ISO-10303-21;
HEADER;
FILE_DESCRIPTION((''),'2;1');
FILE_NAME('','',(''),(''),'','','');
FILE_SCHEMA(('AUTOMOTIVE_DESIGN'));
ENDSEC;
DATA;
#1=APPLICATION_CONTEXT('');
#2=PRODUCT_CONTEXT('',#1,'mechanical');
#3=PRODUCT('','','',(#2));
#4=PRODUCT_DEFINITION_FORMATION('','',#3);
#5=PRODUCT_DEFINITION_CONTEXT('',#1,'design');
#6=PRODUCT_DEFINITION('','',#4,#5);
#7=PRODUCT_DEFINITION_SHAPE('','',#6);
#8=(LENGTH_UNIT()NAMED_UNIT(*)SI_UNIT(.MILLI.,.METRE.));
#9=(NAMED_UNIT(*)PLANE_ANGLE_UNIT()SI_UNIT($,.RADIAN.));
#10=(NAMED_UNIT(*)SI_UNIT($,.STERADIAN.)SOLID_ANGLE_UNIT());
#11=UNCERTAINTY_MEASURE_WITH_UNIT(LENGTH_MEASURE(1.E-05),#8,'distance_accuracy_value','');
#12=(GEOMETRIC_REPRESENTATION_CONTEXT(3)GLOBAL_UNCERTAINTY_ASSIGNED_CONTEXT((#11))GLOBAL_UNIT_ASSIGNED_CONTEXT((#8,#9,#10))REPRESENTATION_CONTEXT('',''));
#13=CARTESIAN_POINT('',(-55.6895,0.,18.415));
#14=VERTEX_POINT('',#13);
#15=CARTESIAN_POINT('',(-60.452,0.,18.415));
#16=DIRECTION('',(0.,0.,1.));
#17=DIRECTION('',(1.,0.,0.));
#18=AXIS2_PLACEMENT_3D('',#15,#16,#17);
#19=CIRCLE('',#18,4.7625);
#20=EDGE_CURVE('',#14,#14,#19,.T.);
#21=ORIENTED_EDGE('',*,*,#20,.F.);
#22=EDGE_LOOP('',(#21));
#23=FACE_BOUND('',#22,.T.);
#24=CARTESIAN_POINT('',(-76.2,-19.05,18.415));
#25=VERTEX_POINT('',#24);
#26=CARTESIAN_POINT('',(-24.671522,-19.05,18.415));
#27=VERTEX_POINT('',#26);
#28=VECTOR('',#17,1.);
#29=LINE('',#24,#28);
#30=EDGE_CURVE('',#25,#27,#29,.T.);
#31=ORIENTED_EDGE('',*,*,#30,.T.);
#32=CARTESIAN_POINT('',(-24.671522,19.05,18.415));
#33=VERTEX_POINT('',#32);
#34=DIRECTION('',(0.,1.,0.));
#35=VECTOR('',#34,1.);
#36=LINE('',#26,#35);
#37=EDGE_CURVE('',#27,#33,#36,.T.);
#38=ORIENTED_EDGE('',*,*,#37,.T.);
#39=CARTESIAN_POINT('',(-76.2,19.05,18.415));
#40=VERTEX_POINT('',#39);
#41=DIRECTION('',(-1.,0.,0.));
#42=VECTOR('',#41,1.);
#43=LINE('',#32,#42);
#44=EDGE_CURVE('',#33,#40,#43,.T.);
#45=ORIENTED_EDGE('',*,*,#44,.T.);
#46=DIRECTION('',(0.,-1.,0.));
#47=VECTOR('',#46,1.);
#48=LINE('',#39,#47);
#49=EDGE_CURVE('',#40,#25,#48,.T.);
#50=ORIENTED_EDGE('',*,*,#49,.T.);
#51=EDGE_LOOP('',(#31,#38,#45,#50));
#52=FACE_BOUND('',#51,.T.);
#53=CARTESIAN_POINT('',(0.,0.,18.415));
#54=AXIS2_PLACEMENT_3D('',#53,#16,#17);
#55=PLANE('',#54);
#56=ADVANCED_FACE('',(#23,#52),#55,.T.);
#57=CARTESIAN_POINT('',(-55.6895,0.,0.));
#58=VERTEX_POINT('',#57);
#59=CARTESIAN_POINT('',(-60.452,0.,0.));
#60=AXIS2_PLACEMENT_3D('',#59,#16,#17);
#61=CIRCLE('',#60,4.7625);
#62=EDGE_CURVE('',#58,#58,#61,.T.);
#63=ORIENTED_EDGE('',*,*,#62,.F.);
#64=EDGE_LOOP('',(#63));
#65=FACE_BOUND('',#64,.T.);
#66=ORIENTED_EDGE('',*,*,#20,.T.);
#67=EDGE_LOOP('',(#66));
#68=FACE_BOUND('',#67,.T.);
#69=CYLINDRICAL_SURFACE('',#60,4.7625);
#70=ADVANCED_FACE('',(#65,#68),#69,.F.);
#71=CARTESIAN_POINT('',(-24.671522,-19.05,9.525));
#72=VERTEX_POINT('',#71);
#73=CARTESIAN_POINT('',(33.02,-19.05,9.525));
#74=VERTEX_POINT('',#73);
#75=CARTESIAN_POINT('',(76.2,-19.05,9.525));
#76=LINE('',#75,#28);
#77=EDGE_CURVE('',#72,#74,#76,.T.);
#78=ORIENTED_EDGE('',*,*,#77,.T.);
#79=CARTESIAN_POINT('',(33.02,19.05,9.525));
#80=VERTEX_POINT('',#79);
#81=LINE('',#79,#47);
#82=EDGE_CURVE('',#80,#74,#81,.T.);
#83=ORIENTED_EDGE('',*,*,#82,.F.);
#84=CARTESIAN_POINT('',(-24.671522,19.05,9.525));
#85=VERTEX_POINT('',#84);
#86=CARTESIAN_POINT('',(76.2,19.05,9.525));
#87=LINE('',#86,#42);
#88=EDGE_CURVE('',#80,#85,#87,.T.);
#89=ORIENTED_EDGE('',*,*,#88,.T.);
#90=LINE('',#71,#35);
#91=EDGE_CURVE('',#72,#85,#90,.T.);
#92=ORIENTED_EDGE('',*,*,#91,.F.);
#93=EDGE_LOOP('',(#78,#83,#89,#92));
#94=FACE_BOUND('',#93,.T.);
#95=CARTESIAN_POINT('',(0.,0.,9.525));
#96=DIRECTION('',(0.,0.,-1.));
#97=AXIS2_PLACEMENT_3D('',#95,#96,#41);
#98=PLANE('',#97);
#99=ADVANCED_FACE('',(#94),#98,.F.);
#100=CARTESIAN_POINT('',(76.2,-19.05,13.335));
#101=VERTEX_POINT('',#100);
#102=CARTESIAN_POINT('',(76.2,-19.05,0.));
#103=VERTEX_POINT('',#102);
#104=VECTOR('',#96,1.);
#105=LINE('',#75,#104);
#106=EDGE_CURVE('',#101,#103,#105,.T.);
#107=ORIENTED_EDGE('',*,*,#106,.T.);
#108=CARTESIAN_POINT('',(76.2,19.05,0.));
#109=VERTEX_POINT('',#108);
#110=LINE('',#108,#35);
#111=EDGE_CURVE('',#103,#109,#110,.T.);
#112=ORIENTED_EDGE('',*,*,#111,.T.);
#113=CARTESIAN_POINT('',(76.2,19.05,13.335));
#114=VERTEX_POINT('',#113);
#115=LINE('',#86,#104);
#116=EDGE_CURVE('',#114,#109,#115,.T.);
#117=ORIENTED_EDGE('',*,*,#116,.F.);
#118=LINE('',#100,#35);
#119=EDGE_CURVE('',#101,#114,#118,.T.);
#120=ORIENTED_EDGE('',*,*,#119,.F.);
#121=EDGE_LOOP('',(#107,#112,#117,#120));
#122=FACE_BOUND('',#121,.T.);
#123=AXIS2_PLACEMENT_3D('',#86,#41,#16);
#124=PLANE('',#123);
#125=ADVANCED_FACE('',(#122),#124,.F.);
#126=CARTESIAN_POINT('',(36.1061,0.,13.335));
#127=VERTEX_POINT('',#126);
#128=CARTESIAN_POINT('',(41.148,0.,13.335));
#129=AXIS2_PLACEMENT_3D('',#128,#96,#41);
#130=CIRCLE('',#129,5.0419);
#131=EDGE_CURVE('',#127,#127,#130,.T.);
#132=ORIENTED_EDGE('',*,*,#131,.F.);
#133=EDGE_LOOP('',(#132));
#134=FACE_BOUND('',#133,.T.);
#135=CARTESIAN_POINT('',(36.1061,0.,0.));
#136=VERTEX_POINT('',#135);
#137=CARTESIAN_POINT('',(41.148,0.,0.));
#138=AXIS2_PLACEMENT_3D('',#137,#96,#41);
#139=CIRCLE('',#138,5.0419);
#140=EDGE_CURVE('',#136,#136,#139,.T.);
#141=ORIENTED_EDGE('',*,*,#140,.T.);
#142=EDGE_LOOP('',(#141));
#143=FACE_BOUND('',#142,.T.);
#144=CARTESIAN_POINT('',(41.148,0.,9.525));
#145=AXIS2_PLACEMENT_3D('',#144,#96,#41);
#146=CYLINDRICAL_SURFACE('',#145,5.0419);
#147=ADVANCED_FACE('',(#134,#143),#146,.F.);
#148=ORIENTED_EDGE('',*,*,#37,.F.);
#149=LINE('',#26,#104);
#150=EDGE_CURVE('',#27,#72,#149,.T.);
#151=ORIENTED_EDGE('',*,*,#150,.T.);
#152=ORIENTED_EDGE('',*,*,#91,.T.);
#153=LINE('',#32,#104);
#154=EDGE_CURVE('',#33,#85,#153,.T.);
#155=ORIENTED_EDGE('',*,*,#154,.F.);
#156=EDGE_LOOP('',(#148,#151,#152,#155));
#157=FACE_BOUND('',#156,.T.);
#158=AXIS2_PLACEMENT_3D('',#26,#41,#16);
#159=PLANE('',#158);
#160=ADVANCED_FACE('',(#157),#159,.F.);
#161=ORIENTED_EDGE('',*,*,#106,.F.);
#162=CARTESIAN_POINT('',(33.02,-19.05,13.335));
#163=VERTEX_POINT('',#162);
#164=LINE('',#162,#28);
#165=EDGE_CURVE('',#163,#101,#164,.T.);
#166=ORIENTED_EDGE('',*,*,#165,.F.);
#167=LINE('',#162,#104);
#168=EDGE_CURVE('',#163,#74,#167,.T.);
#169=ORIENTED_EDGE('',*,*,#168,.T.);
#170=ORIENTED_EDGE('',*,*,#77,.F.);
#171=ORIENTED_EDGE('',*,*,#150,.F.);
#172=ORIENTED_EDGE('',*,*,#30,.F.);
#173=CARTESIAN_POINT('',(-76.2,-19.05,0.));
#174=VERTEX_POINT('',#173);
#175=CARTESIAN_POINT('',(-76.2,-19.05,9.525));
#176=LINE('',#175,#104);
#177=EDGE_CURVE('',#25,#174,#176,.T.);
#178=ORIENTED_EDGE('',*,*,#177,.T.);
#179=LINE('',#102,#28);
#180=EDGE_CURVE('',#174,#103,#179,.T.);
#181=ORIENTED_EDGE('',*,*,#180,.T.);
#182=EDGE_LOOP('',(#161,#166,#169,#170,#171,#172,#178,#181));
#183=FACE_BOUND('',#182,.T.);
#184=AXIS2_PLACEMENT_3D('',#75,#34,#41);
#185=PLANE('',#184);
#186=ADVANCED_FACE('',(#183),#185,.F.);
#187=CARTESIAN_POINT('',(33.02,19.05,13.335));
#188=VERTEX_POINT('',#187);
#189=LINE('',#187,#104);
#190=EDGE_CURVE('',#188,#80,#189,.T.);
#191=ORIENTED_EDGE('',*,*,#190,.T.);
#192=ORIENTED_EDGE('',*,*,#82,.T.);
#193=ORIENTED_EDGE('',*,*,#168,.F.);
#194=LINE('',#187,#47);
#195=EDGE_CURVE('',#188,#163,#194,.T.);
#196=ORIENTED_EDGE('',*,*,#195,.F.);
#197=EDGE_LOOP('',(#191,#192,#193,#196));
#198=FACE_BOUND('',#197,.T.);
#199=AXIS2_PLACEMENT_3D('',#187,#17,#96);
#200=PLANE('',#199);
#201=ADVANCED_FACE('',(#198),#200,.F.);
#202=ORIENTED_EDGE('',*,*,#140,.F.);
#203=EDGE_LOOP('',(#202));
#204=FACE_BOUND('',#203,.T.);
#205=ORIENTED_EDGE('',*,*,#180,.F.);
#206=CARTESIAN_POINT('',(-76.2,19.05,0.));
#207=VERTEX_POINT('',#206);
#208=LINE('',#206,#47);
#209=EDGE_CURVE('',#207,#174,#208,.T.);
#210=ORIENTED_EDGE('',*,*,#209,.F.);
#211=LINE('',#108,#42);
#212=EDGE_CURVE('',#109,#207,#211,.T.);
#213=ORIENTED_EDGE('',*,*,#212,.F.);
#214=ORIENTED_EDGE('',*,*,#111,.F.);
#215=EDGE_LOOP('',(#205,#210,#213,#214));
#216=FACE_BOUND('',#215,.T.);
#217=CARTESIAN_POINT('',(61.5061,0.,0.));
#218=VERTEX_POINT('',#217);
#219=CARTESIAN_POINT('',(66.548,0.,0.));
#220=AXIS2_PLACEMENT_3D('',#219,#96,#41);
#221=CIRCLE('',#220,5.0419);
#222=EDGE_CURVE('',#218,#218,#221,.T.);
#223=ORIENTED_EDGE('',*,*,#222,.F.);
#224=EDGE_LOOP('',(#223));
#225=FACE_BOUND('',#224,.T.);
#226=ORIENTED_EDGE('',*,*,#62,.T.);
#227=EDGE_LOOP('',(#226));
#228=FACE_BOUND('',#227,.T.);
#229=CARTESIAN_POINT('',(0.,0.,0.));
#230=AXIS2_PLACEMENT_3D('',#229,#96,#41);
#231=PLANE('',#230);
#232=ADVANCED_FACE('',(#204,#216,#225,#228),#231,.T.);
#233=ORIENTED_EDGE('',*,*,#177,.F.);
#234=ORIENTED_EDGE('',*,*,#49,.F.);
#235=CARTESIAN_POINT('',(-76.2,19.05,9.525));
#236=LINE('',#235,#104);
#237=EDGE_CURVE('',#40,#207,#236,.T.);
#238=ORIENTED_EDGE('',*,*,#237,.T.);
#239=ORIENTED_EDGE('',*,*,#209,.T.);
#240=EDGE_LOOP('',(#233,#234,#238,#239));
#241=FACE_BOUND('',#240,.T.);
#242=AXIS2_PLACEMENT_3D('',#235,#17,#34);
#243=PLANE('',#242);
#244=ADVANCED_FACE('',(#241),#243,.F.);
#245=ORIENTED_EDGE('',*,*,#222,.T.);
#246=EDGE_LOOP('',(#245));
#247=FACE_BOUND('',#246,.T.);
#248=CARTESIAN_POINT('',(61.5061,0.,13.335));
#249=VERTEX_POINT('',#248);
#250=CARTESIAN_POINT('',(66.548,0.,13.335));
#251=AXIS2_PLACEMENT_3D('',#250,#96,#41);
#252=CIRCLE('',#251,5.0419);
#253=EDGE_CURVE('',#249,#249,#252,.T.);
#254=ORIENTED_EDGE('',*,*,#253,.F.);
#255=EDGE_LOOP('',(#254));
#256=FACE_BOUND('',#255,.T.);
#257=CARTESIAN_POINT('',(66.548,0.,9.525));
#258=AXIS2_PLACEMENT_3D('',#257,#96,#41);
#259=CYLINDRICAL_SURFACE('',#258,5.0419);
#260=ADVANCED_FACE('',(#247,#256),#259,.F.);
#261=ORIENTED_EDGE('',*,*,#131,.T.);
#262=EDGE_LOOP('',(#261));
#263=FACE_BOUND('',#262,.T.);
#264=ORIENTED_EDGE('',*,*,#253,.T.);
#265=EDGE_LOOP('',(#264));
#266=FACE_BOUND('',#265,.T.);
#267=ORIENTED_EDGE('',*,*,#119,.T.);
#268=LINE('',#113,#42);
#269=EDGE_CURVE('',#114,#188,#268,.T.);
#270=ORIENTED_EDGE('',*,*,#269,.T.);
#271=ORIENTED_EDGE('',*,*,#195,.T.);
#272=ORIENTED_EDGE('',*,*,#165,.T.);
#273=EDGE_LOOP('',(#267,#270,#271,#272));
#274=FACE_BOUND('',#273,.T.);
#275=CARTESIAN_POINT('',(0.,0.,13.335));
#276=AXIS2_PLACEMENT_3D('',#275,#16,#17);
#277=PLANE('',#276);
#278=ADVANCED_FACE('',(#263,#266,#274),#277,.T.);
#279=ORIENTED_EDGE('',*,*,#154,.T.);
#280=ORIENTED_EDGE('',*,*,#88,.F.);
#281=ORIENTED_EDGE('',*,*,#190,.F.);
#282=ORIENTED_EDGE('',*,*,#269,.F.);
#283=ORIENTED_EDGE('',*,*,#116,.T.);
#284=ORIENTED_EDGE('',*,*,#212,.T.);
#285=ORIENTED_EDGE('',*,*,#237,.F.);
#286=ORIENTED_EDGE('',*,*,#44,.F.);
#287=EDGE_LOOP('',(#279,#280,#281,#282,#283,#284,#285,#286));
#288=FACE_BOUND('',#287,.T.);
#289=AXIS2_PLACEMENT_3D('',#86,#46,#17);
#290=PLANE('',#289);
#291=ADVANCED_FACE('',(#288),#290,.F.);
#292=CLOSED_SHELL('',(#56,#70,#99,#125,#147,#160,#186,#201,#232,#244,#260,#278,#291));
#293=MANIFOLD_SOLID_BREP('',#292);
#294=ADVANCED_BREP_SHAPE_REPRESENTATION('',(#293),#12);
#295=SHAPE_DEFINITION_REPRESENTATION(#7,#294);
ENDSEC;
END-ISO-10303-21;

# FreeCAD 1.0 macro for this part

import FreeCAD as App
import Part
import Sketcher

V = App.Vector
Q = App.Units.Quantity


def add_polygon(sketch, points):
    """Adds a closed chain of lines whose ends are joined by coincident constraints."""
    first, n = sketch.GeometryCount, len(points)
    for a, b in zip(points, points[1:] + points[:1]):
        sketch.addGeometry(Part.LineSegment(App.Vector(*a, 0), App.Vector(*b, 0)), False)
    for i in range(n):
        sketch.addConstraint(Sketcher.Constraint("Coincident", first + i, 2, first + (i + 1) % n, 1))

doc = App.newDocument("Part")
params = doc.addObject("Spreadsheet::Sheet", "Params")
for row, (alias, value) in enumerate([
    ("sketch1_width", "6 in"),
    ("sketch1_height", "1.5 in"),
    ("pad1_length", "0.375 in"),
    ("sketch2_width", "1.7 in"),
    ("sketch2_height", "1.5 in"),
    ("pad2_length", "0.15 in"),
    ("sketch3_height", "0.15 in"),
    ("groove_angle", "360 deg"),
    ("linearpattern_pitch", "1 in"),
    ("sketch4_height", "1.5 in"),
    ("pad3_length", "0.35 in"),
    ("sketch5_diameter", "0.397 in"),
    ("hole_diameter", "0.397 in"),
    ("sketch6_diameter", "0.375 in"),
], start=1):
    params.set(f"A{row}", alias)
    params.set(f"B{row}", "=" + value)
    params.setAlias(f"B{row}", alias)

body = doc.addObject("PartDesign::Body", "Body")

# Sketch on XY plane
sketch1 = doc.addObject("Sketcher::SketchObject", "Sketch")
body.addObject(sketch1)
sketch1.AttachmentSupport = (doc.XY_Plane, [""])
sketch1.MapMode = "FlatFace"
add_polygon(sketch1, [(-76.2, 19.05), (-76.2, -19.05), (76.2, -19.05), (76.2, 19.05)])  # lines 0-3
sketch1.addConstraint([
    Sketcher.Constraint("Vertical", 0),
    Sketcher.Constraint("Horizontal", 1),
    Sketcher.Constraint("Vertical", 2),
    Sketcher.Constraint("Horizontal", 3),
    Sketcher.Constraint("Symmetric", 0, 2, 2, 2, -1, 1),
    Sketcher.Constraint("DistanceX", 1, 1, 1, 2, Q("6 in")),
    Sketcher.Constraint("DistanceY", 0, 2, 0, 1, Q("1.5 in")),
])
sketch1.setExpression("Constraints[9]", "Params.sketch1_width")
sketch1.setExpression("Constraints[10]", "Params.sketch1_height")
pad1 = doc.addObject("PartDesign::Pad", "Pad")
body.addObject(pad1)
pad1.Profile = sketch1
pad1.setExpression("Length", "Params.pad1_length")

# Sketch on XY plane
sketch2 = doc.addObject("Sketcher::SketchObject", "Sketch001")
body.addObject(sketch2)
sketch2.AttachmentSupport = (doc.XY_Plane, [""])
sketch2.MapMode = "FlatFace"
sketch2.AttachmentOffset = App.Placement(V(0, 0, 0.375 * 25.4), App.Rotation())
add_polygon(sketch2, [(33.02, 19.05), (33.02, -19.05), (76.2, -19.05), (76.2, 19.05)])  # lines 0-3
sketch2.addConstraint([
    Sketcher.Constraint("Vertical", 0),
    Sketcher.Constraint("Horizontal", 1),
    Sketcher.Constraint("Vertical", 2),
    Sketcher.Constraint("Horizontal", 3),
    Sketcher.Constraint("DistanceX", 1, 1, 1, 2, Q("1.7 in")),
    Sketcher.Constraint("DistanceY", 0, 2, 0, 1, Q("1.5 in")),
    Sketcher.Constraint("DistanceX", -1, 1, 1, 2, Q("3 in")),
    Sketcher.Constraint("DistanceY", 0, 2, -1, 1, Q("0.75 in")),
])
sketch2.setExpression("Constraints[8]", "Params.sketch2_width")
sketch2.setExpression("Constraints[9]", "Params.sketch2_height")
pad2 = doc.addObject("PartDesign::Pad", "Pad001")
body.addObject(pad2)
pad2.Profile = sketch2
pad2.setExpression("Length", "Params.pad2_length")

# Sketch on YZ plane
sketch3 = doc.addObject("Sketcher::SketchObject", "Sketch002")
body.addObject(sketch3)
sketch3.AttachmentSupport = (doc.YZ_Plane, [""])
sketch3.MapMode = "FlatFace"
sketch3.AttachmentOffset = App.Placement(V(0, 0, 1.62 * 25.4), App.Rotation())
add_polygon(sketch3, [(0, 13.335), (0, 9.525), (5.0419, 9.525), (5.0419, 13.335)])  # lines 0-3
sketch3.addConstraint([
    Sketcher.Constraint("Vertical", 0),
    Sketcher.Constraint("Horizontal", 1),
    Sketcher.Constraint("Vertical", 2),
    Sketcher.Constraint("Horizontal", 3),
    Sketcher.Constraint("PointOnObject", 0, 2, -2),
    Sketcher.Constraint("DistanceY", 0, 2, 0, 1, Q("0.15 in")),
    Sketcher.Constraint("DistanceX", 1, 1, 1, 2, Q("0.1985 in")),
    Sketcher.Constraint("DistanceY", -1, 1, 0, 2, Q("0.375 in")),
])
sketch3.setExpression("Constraints[9]", "Params.sketch3_height")
groove = doc.addObject("PartDesign::Groove", "Groove")
body.addObject(groove)
groove.Profile = sketch3
groove.ReferenceAxis = (sketch3, ["V_Axis"])
groove.setExpression("Angle", "Params.groove_angle")
doc.recompute()

linearpattern = doc.addObject("PartDesign::LinearPattern", "LinearPattern")
body.addObject(linearpattern)
linearpattern.Originals = [groove]
linearpattern.Direction = (doc.X_Axis, [""])
linearpattern.Mode = "offset"
linearpattern.setExpression("Offset", "Params.linearpattern_pitch")
linearpattern.Occurrences = 2
body.Tip = linearpattern

# Sketch on XY plane
sketch4 = doc.addObject("Sketcher::SketchObject", "Sketch003")
body.addObject(sketch4)
sketch4.AttachmentSupport = (doc.XY_Plane, [""])
sketch4.MapMode = "FlatFace"
sketch4.AttachmentOffset = App.Placement(V(0, 0, 0.375 * 25.4), App.Rotation())
add_polygon(sketch4, [(-76.2, 19.05), (-76.2, -19.05), (-24.671522, -19.05), (-24.671522, 19.05)])  # lines 0-3
sketch4.addConstraint([
    Sketcher.Constraint("Vertical", 0),
    Sketcher.Constraint("Horizontal", 1),
    Sketcher.Constraint("Vertical", 2),
    Sketcher.Constraint("Horizontal", 3),
    Sketcher.Constraint("DistanceY", 0, 2, 0, 1, Q("1.5 in")),
    Sketcher.Constraint("DistanceX", 0, 2, -1, 1, Q("3 in")),
    Sketcher.Constraint("DistanceY", 0, 2, -1, 1, Q("0.75 in")),
    Sketcher.Constraint("DistanceX", 1, 1, 1, 2, Q("51.528478 mm")),
])
sketch4.setExpression("Constraints[8]", "Params.sketch4_height")
pad3 = doc.addObject("PartDesign::Pad", "Pad002")
body.addObject(pad3)
pad3.Profile = sketch4
pad3.setExpression("Length", "Params.pad3_length")

# Sketch on XY plane
sketch5 = doc.addObject("Sketcher::SketchObject", "Sketch004")
body.addObject(sketch5)
sketch5.AttachmentSupport = (doc.XY_Plane, [""])
sketch5.MapMode = "FlatFace"
sketch5.addGeometry([
    Part.Circle(V(66.548, 0, 0), V(0, 0, 1), 5.0419),
    Part.Circle(V(41.148, 0, 0), V(0, 0, 1), 5.0419),
], False)
sketch5.addConstraint([
    Sketcher.Constraint("Equal", 0, 1),
    Sketcher.Constraint("PointOnObject", 0, 3, -1),
    Sketcher.Constraint("PointOnObject", 1, 3, -1),
    Sketcher.Constraint("Diameter", 0, Q("0.397 in")),
    Sketcher.Constraint("DistanceX", 1, 3, 0, 3, Q("1 in")),
    Sketcher.Constraint("DistanceX", -1, 1, 0, 3, Q("2.62 in")),
])
sketch5.setExpression("Constraints[3]", "Params.sketch5_diameter")
doc.recompute()
hole = doc.addObject("PartDesign::Hole", "Hole")
body.addObject(hole)
hole.Profile = sketch5
hole.ThreadType = "None"
hole.setExpression("Diameter", "Params.hole_diameter")
hole.DepthType = "ThroughAll"
hole.Reversed = True

# Sketch on XY plane
sketch6 = doc.addObject("Sketcher::SketchObject", "Sketch005")
body.addObject(sketch6)
sketch6.AttachmentSupport = (doc.XY_Plane, [""])
sketch6.MapMode = "FlatFace"
sketch6.AttachmentOffset = App.Placement(V(0, 0, 0.725 * 25.4), App.Rotation())
sketch6.addGeometry(Part.Circle(V(-60.452, 0, 0), V(0, 0, 1), 4.7625), False)
sketch6.addConstraint([
    Sketcher.Constraint("PointOnObject", 0, 3, -1),
    Sketcher.Constraint("Diameter", 0, Q("0.375 in")),
    Sketcher.Constraint("DistanceX", 0, 3, -1, 1, Q("2.38 in")),
])
sketch6.setExpression("Constraints[1]", "Params.sketch6_diameter")
pocket1 = doc.addObject("PartDesign::Pocket", "Pocket")
body.addObject(pocket1)
pocket1.Profile = sketch6
pocket1.Type = "ThroughAll"

doc.recompute()
